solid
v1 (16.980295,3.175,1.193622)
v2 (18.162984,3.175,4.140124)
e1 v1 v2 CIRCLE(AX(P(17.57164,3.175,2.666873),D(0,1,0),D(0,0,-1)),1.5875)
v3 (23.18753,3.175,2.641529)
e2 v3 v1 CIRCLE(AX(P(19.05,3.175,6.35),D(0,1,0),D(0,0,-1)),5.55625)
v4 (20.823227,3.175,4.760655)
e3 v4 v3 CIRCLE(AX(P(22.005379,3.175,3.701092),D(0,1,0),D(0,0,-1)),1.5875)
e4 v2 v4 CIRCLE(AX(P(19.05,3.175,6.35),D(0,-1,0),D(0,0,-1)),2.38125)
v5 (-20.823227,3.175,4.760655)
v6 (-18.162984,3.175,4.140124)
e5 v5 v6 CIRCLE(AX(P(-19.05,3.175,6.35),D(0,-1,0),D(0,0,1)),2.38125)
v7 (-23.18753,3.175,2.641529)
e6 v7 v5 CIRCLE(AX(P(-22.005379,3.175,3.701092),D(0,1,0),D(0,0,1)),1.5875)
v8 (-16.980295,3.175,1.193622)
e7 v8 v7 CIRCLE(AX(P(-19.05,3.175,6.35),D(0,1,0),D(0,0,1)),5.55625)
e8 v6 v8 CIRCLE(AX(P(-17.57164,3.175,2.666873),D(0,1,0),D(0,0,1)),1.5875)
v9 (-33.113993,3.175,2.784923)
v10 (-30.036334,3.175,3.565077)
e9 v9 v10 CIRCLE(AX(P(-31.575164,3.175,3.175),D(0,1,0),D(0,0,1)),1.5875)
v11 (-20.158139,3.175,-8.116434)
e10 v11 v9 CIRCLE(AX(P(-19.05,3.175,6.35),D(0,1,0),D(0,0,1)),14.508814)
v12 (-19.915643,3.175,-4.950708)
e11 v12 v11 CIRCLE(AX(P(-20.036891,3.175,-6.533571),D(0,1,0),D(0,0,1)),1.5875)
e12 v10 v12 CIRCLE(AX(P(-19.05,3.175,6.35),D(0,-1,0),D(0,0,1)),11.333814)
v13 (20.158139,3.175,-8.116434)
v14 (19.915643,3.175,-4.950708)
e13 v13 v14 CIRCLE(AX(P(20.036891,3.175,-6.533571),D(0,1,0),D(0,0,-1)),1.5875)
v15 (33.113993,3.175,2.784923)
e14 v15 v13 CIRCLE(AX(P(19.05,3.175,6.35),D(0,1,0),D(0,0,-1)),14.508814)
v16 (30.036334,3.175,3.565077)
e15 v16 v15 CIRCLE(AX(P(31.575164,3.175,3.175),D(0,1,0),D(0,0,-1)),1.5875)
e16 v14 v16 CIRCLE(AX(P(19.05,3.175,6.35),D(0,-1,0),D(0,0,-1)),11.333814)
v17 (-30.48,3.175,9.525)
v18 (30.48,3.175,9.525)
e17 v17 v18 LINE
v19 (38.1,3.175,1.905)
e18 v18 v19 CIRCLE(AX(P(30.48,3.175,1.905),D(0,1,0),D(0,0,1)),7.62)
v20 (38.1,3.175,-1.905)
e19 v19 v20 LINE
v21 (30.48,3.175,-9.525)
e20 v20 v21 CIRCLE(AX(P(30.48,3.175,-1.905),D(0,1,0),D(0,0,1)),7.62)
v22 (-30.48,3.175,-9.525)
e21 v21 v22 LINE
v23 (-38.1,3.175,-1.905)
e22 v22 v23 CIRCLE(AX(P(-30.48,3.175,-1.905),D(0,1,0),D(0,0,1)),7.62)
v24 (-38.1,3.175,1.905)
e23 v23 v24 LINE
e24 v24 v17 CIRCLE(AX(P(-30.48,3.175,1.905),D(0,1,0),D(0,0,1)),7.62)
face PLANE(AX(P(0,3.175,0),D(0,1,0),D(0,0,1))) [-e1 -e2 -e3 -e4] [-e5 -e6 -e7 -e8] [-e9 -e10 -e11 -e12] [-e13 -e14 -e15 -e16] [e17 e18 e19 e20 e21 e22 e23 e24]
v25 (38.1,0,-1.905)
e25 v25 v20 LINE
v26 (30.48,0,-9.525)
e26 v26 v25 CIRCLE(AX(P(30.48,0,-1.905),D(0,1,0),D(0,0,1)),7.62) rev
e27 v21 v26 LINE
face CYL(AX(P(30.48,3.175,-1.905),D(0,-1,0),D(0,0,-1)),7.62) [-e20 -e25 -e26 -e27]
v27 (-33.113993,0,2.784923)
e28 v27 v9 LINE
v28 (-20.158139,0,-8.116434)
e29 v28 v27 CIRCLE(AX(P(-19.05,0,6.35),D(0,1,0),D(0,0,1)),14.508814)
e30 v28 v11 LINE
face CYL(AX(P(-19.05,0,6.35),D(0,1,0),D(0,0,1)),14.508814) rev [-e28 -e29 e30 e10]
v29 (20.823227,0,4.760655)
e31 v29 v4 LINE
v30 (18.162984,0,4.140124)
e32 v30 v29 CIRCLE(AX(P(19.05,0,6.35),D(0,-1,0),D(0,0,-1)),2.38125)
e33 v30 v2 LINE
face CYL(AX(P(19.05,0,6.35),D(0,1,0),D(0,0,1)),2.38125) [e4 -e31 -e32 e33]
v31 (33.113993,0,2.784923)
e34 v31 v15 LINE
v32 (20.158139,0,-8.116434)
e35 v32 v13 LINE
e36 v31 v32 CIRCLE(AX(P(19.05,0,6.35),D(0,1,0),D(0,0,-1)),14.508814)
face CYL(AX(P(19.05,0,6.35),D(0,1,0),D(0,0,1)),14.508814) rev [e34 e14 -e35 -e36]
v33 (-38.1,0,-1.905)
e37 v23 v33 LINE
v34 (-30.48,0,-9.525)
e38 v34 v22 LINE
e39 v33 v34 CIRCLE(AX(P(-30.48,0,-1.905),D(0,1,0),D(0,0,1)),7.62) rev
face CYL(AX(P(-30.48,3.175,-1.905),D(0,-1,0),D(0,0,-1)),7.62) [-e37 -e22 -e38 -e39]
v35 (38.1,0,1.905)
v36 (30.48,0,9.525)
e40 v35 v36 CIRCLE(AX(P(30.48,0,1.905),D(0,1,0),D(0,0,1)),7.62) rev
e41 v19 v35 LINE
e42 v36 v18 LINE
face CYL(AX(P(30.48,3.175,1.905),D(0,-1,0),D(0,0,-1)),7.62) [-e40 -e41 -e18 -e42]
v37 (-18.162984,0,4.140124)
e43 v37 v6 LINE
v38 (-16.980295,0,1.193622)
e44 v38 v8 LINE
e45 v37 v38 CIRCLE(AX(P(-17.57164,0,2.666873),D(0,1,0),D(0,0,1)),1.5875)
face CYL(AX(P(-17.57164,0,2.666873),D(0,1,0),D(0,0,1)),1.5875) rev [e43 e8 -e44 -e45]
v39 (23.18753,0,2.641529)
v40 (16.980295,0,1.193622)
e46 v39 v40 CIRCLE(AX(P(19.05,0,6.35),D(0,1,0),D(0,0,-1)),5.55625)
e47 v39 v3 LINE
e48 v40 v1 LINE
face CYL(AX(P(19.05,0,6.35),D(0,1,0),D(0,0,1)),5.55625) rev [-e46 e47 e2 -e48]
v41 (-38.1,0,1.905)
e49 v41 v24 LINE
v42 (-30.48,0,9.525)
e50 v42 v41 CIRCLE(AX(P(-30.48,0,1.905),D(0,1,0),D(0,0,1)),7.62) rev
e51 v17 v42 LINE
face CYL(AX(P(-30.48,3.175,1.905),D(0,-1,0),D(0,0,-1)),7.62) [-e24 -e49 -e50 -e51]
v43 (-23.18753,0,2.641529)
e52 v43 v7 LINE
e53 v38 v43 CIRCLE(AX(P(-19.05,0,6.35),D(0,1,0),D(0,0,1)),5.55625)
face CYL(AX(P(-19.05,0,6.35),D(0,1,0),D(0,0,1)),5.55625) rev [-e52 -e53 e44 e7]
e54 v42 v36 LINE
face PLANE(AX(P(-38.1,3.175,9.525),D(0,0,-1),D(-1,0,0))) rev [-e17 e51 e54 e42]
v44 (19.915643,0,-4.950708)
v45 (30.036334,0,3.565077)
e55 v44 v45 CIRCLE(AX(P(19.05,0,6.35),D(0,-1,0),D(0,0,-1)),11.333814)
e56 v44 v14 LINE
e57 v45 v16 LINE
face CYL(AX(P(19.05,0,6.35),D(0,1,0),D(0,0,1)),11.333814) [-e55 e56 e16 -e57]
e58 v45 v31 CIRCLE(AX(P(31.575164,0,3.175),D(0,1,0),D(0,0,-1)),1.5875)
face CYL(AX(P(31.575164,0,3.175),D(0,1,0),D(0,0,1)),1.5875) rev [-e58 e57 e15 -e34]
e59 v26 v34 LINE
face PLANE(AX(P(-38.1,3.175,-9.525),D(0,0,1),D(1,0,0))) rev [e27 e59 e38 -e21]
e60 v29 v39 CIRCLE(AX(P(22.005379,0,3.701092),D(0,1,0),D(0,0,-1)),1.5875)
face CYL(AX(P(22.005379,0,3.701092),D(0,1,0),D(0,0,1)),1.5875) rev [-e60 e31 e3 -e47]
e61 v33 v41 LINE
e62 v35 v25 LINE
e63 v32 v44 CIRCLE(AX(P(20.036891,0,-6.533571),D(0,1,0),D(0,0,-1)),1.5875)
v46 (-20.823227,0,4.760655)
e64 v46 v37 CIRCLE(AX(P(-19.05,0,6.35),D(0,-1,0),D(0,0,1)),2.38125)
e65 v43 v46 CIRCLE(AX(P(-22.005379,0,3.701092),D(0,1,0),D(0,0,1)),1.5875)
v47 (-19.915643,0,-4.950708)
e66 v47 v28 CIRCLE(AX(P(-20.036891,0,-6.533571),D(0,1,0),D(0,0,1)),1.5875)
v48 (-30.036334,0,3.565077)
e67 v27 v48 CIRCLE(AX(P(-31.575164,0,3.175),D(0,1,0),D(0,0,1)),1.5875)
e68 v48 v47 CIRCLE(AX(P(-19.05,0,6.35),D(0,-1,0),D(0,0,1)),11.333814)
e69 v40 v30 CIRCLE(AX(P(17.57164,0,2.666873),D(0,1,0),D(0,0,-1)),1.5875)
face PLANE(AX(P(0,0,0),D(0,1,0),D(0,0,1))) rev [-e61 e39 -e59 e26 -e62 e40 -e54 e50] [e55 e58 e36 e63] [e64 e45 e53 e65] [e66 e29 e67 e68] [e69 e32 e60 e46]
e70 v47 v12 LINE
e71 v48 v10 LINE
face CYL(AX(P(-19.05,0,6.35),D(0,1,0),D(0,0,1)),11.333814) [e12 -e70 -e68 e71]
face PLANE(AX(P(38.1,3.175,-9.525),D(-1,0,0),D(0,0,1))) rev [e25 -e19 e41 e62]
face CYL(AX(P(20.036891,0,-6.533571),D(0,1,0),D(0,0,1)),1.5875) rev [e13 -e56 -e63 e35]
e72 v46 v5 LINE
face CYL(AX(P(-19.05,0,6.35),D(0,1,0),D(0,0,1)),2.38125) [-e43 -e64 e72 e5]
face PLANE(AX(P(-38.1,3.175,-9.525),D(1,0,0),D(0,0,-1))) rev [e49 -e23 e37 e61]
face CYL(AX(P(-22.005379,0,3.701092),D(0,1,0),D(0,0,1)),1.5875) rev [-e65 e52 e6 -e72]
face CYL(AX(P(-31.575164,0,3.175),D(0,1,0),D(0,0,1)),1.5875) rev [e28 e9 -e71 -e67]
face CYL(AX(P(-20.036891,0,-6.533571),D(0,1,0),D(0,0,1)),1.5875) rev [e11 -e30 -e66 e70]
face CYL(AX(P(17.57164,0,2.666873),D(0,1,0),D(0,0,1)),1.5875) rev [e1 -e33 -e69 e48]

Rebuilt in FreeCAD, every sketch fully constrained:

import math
import FreeCAD as App
import Part
import Sketcher
from FreeCAD import Vector
Q = App.Units.Quantity


def edges_at(feature, points):
    """Names of the edges that pass closest to the given points."""
    edges = feature.Shape.Edges
    near = lambda p: min(range(len(edges)), key=lambda i: edges[i].distToShape(Part.Vertex(*p))[0])
    return sorted({f"Edge{near(p) + 1}" for p in points})

doc = App.newDocument("Part")
params = doc.addObject("Spreadsheet::Sheet", "Params")
for row, (alias, value) in enumerate([
    ("sketch1_width", "3 in"),
    ("sketch1_height", "0.75 in"),
    ("pad1_length", "0.125 in"),
    ("sketch2_radius", "0.0625 in"),
    ("sketch2_radius2", "0.21875 in"),
    ("fillet_radius", "0.3 in"),
], start=1):
    params.set(f"A{row}", alias)
    params.set(f"B{row}", "=" + value)
    params.setAlias(f"B{row}", alias)

body = doc.addObject("PartDesign::Body", "Body")

# Sketch on XZ plane
sketch1 = body.newObject("Sketcher::SketchObject", "Sketch")
sketch1.AttachmentSupport = (doc.getObject("XZ_Plane"), [""])
sketch1.MapMode = "FlatFace"
sketch1.addGeometry(Part.LineSegment(Vector(-38, -10, 0), Vector(-38, 10, 0)), False)
sketch1.addGeometry(Part.LineSegment(Vector(-38, 10, 0), Vector(38, 10, 0)), False)
sketch1.addGeometry(Part.LineSegment(Vector(38, 10, 0), Vector(38, -10, 0)), False)
sketch1.addGeometry(Part.LineSegment(Vector(38, -10, 0), Vector(-38, -10, 0)), False)
sketch1.addConstraint(Sketcher.Constraint("Coincident", 0, 2, 1, 1))
sketch1.addConstraint(Sketcher.Constraint("Coincident", 1, 2, 2, 1))
sketch1.addConstraint(Sketcher.Constraint("Coincident", 2, 2, 3, 1))
sketch1.addConstraint(Sketcher.Constraint("Coincident", 3, 2, 0, 1))
sketch1.addConstraint(Sketcher.Constraint("Vertical", 0))
sketch1.addConstraint(Sketcher.Constraint("Horizontal", 1))
sketch1.addConstraint(Sketcher.Constraint("Vertical", 2))
sketch1.addConstraint(Sketcher.Constraint("Horizontal", 3))
sketch1.addConstraint(Sketcher.Constraint("Symmetric", 0, 2, 2, 2, -1, 1))
sketch1.addConstraint(Sketcher.Constraint("DistanceX", 1, 1, 1, 2, Q("3 in")))
sketch1.addConstraint(Sketcher.Constraint("DistanceY", 0, 1, 0, 2, Q("0.75 in")))
sketch1.setExpression("Constraints[9]", "Params.sketch1_width")
sketch1.setExpression("Constraints[10]", "Params.sketch1_height")
pad1 = body.newObject("PartDesign::Pad", "Pad")
pad1.Profile = sketch1
pad1.setExpression("Length", "Params.pad1_length")
pad1.Reversed = True

# Sketch on XZ plane
sketch2 = body.newObject("Sketcher::SketchObject", "Sketch001")
sketch2.AttachmentSupport = (doc.getObject("XZ_Plane"), [""])
sketch2.MapMode = "FlatFace"
sketch2.AttachmentOffset = App.Placement(Vector(0, 0, -0.125 * 25.4), App.Rotation())
sketch2.addGeometry(Part.ArcOfCircle(Part.Circle(Vector(-19, 6.4, 0), Vector(0, 0, 1), 14.5), math.radians(-166), math.radians(-94)), False)
sketch2.addGeometry(Part.ArcOfCircle(Part.Circle(Vector(-31.6, 3.2, 0), Vector(0, 0, 1), 1.6), math.radians(14), math.radians(194)), False)
sketch2.addGeometry(Part.ArcOfCircle(Part.Circle(Vector(-19, 6.4, 0), Vector(0, 0, 1), 11.3), math.radians(-166), math.radians(-94)), False)
sketch2.addGeometry(Part.ArcOfCircle(Part.Circle(Vector(-20, -6.5, 0), Vector(0, 0, 1), 1.6), math.radians(-94), math.radians(86)), False)
sketch2.addGeometry(Part.ArcOfCircle(Part.Circle(Vector(-19.1, 6.4, 0), Vector(0, 0, 1), 5.6), math.radians(-138), math.radians(-68)), False)
sketch2.addGeometry(Part.ArcOfCircle(Part.Circle(Vector(-22, 3.7, 0), Vector(0, 0, 1), 1.6), math.radians(42), math.radians(222)), False)
sketch2.addGeometry(Part.ArcOfCircle(Part.Circle(Vector(-19.1, 6.3, 0), Vector(0, 0, 1), 2.4), math.radians(-138), math.radians(-68)), False)
sketch2.addGeometry(Part.ArcOfCircle(Part.Circle(Vector(-17.6, 2.7, 0), Vector(0, 0, 1), 1.6), math.radians(-68), math.radians(112)), False)
sketch2.addGeometry(Part.ArcOfCircle(Part.Circle(Vector(19.1, 6.4, 0), Vector(0, 0, 1), 5.6), math.radians(-112), math.radians(-42)), False)
sketch2.addGeometry(Part.ArcOfCircle(Part.Circle(Vector(17.6, 2.7, 0), Vector(0, 0, 1), 1.6), math.radians(68), math.radians(248)), False)
sketch2.addGeometry(Part.ArcOfCircle(Part.Circle(Vector(19.1, 6.3, 0), Vector(0, 0, 1), 2.4), math.radians(-112), math.radians(-42)), False)
sketch2.addGeometry(Part.ArcOfCircle(Part.Circle(Vector(22, 3.7, 0), Vector(0, 0, 1), 1.6), math.radians(-42), math.radians(138)), False)
sketch2.addGeometry(Part.ArcOfCircle(Part.Circle(Vector(19, 6.4, 0), Vector(0, 0, 1), 14.5), math.radians(-86), math.radians(-14)), False)
sketch2.addGeometry(Part.ArcOfCircle(Part.Circle(Vector(20, -6.5, 0), Vector(0, 0, 1), 1.6), math.radians(94), math.radians(274)), False)
sketch2.addGeometry(Part.ArcOfCircle(Part.Circle(Vector(19, 6.4, 0), Vector(0, 0, 1), 11.3), math.radians(-86), math.radians(-14)), False)
sketch2.addGeometry(Part.ArcOfCircle(Part.Circle(Vector(31.6, 3.2, 0), Vector(0, 0, 1), 1.6), math.radians(-14), math.radians(166)), False)
sketch2.addConstraint(Sketcher.Constraint("Tangent", 0, 1, 1, 2))
sketch2.addConstraint(Sketcher.Constraint("Tangent", 1, 1, 2, 1))
sketch2.addConstraint(Sketcher.Constraint("Tangent", 2, 2, 3, 2))
sketch2.addConstraint(Sketcher.Constraint("Tangent", 3, 1, 0, 2))
sketch2.addConstraint(Sketcher.Constraint("Tangent", 4, 1, 5, 2))
sketch2.addConstraint(Sketcher.Constraint("Tangent", 5, 1, 6, 1))
sketch2.addConstraint(Sketcher.Constraint("Tangent", 6, 2, 7, 2))
sketch2.addConstraint(Sketcher.Constraint("Tangent", 7, 1, 4, 2))
sketch2.addConstraint(Sketcher.Constraint("Tangent", 8, 1, 9, 2))
sketch2.addConstraint(Sketcher.Constraint("Tangent", 9, 1, 10, 1))
sketch2.addConstraint(Sketcher.Constraint("Tangent", 10, 2, 11, 2))
sketch2.addConstraint(Sketcher.Constraint("Tangent", 11, 1, 8, 2))
sketch2.addConstraint(Sketcher.Constraint("Tangent", 12, 1, 13, 2))
sketch2.addConstraint(Sketcher.Constraint("Tangent", 13, 1, 14, 1))
sketch2.addConstraint(Sketcher.Constraint("Tangent", 14, 2, 15, 2))
sketch2.addConstraint(Sketcher.Constraint("Tangent", 15, 1, 12, 2))
sketch2.addConstraint(Sketcher.Constraint("Coincident", 2, 3, 0, 3))
sketch2.addConstraint(Sketcher.Constraint("Coincident", 4, 3, 0, 3))
sketch2.addConstraint(Sketcher.Constraint("Coincident", 6, 3, 0, 3))
sketch2.addConstraint(Sketcher.Constraint("Coincident", 10, 3, 8, 3))
sketch2.addConstraint(Sketcher.Constraint("Coincident", 12, 3, 8, 3))
sketch2.addConstraint(Sketcher.Constraint("Coincident", 14, 3, 8, 3))
sketch2.addConstraint(Sketcher.Constraint("Equal", 3, 5))
sketch2.addConstraint(Sketcher.Constraint("Equal", 4, 8))
sketch2.addConstraint(Sketcher.Constraint("Equal", 7, 9))
sketch2.addConstraint(Sketcher.Constraint("Equal", 0, 12))
sketch2.addConstraint(Sketcher.Constraint("Equal", 11, 13))
sketch2.addConstraint(Sketcher.Constraint("Symmetric", 0, 3, 8, 3, -2))
sketch2.addConstraint(Sketcher.Constraint("Horizontal", 7, 3, 9, 3))
sketch2.addConstraint(Sketcher.Constraint("Horizontal", 5, 3, 11, 3))
sketch2.addConstraint(Sketcher.Constraint("Horizontal", 3, 3, 13, 3))
sketch2.addConstraint(Sketcher.Constraint("Horizontal", 1, 3, 15, 3))
sketch2.addConstraint(Sketcher.Constraint("Radius", 1, Q("0.0625 in")))
sketch2.addConstraint(Sketcher.Constraint("Radius", 4, Q("0.21875 in")))
sketch2.addConstraint(Sketcher.Constraint("DistanceX", 0, 3, 8, 3, Q("1.5 in")))
sketch2.addConstraint(Sketcher.Constraint("DistanceY", -1, 1, 0, 3, Q("0.25 in")))
sketch2.addConstraint(Sketcher.Constraint("DistanceY", -1, 1, 1, 3, Q("0.125 in")))
sketch2.addConstraint(Sketcher.Constraint("DistanceY", 11, 1, 9, 1, Q("0.0589998 in")))
sketch2.addConstraint(Sketcher.Constraint("Radius", 0, 14.508814))
sketch2.addConstraint(Sketcher.Constraint("DistanceY", 2, 2, 5, 3, 8.6518))
sketch2.addConstraint(Sketcher.Constraint("DistanceX", 3, 1, 7, 3, 2.5865))
sketch2.setExpression("Constraints[32]", "Params.sketch2_radius")
sketch2.setExpression("Constraints[33]", "Params.sketch2_radius2")
pocket1 = body.newObject("PartDesign::Pocket", "Pocket")
pocket1.Profile = sketch2
pocket1.Type = "ThroughAll"
pocket1.Reversed = True
doc.recompute()

fillet = body.newObject("PartDesign::Fillet", "Fillet")
fillet.Base = (pocket1, edges_at(pocket1, [
    (38.1, 1.587, 9.525),
    (-38.1, 1.587, 9.525),
    (-38.1, 1.587, -9.525),
    (38.1, 1.587, -9.525),
]))
fillet.setExpression("Radius", "Params.fillet_radius")

doc.recompute()
